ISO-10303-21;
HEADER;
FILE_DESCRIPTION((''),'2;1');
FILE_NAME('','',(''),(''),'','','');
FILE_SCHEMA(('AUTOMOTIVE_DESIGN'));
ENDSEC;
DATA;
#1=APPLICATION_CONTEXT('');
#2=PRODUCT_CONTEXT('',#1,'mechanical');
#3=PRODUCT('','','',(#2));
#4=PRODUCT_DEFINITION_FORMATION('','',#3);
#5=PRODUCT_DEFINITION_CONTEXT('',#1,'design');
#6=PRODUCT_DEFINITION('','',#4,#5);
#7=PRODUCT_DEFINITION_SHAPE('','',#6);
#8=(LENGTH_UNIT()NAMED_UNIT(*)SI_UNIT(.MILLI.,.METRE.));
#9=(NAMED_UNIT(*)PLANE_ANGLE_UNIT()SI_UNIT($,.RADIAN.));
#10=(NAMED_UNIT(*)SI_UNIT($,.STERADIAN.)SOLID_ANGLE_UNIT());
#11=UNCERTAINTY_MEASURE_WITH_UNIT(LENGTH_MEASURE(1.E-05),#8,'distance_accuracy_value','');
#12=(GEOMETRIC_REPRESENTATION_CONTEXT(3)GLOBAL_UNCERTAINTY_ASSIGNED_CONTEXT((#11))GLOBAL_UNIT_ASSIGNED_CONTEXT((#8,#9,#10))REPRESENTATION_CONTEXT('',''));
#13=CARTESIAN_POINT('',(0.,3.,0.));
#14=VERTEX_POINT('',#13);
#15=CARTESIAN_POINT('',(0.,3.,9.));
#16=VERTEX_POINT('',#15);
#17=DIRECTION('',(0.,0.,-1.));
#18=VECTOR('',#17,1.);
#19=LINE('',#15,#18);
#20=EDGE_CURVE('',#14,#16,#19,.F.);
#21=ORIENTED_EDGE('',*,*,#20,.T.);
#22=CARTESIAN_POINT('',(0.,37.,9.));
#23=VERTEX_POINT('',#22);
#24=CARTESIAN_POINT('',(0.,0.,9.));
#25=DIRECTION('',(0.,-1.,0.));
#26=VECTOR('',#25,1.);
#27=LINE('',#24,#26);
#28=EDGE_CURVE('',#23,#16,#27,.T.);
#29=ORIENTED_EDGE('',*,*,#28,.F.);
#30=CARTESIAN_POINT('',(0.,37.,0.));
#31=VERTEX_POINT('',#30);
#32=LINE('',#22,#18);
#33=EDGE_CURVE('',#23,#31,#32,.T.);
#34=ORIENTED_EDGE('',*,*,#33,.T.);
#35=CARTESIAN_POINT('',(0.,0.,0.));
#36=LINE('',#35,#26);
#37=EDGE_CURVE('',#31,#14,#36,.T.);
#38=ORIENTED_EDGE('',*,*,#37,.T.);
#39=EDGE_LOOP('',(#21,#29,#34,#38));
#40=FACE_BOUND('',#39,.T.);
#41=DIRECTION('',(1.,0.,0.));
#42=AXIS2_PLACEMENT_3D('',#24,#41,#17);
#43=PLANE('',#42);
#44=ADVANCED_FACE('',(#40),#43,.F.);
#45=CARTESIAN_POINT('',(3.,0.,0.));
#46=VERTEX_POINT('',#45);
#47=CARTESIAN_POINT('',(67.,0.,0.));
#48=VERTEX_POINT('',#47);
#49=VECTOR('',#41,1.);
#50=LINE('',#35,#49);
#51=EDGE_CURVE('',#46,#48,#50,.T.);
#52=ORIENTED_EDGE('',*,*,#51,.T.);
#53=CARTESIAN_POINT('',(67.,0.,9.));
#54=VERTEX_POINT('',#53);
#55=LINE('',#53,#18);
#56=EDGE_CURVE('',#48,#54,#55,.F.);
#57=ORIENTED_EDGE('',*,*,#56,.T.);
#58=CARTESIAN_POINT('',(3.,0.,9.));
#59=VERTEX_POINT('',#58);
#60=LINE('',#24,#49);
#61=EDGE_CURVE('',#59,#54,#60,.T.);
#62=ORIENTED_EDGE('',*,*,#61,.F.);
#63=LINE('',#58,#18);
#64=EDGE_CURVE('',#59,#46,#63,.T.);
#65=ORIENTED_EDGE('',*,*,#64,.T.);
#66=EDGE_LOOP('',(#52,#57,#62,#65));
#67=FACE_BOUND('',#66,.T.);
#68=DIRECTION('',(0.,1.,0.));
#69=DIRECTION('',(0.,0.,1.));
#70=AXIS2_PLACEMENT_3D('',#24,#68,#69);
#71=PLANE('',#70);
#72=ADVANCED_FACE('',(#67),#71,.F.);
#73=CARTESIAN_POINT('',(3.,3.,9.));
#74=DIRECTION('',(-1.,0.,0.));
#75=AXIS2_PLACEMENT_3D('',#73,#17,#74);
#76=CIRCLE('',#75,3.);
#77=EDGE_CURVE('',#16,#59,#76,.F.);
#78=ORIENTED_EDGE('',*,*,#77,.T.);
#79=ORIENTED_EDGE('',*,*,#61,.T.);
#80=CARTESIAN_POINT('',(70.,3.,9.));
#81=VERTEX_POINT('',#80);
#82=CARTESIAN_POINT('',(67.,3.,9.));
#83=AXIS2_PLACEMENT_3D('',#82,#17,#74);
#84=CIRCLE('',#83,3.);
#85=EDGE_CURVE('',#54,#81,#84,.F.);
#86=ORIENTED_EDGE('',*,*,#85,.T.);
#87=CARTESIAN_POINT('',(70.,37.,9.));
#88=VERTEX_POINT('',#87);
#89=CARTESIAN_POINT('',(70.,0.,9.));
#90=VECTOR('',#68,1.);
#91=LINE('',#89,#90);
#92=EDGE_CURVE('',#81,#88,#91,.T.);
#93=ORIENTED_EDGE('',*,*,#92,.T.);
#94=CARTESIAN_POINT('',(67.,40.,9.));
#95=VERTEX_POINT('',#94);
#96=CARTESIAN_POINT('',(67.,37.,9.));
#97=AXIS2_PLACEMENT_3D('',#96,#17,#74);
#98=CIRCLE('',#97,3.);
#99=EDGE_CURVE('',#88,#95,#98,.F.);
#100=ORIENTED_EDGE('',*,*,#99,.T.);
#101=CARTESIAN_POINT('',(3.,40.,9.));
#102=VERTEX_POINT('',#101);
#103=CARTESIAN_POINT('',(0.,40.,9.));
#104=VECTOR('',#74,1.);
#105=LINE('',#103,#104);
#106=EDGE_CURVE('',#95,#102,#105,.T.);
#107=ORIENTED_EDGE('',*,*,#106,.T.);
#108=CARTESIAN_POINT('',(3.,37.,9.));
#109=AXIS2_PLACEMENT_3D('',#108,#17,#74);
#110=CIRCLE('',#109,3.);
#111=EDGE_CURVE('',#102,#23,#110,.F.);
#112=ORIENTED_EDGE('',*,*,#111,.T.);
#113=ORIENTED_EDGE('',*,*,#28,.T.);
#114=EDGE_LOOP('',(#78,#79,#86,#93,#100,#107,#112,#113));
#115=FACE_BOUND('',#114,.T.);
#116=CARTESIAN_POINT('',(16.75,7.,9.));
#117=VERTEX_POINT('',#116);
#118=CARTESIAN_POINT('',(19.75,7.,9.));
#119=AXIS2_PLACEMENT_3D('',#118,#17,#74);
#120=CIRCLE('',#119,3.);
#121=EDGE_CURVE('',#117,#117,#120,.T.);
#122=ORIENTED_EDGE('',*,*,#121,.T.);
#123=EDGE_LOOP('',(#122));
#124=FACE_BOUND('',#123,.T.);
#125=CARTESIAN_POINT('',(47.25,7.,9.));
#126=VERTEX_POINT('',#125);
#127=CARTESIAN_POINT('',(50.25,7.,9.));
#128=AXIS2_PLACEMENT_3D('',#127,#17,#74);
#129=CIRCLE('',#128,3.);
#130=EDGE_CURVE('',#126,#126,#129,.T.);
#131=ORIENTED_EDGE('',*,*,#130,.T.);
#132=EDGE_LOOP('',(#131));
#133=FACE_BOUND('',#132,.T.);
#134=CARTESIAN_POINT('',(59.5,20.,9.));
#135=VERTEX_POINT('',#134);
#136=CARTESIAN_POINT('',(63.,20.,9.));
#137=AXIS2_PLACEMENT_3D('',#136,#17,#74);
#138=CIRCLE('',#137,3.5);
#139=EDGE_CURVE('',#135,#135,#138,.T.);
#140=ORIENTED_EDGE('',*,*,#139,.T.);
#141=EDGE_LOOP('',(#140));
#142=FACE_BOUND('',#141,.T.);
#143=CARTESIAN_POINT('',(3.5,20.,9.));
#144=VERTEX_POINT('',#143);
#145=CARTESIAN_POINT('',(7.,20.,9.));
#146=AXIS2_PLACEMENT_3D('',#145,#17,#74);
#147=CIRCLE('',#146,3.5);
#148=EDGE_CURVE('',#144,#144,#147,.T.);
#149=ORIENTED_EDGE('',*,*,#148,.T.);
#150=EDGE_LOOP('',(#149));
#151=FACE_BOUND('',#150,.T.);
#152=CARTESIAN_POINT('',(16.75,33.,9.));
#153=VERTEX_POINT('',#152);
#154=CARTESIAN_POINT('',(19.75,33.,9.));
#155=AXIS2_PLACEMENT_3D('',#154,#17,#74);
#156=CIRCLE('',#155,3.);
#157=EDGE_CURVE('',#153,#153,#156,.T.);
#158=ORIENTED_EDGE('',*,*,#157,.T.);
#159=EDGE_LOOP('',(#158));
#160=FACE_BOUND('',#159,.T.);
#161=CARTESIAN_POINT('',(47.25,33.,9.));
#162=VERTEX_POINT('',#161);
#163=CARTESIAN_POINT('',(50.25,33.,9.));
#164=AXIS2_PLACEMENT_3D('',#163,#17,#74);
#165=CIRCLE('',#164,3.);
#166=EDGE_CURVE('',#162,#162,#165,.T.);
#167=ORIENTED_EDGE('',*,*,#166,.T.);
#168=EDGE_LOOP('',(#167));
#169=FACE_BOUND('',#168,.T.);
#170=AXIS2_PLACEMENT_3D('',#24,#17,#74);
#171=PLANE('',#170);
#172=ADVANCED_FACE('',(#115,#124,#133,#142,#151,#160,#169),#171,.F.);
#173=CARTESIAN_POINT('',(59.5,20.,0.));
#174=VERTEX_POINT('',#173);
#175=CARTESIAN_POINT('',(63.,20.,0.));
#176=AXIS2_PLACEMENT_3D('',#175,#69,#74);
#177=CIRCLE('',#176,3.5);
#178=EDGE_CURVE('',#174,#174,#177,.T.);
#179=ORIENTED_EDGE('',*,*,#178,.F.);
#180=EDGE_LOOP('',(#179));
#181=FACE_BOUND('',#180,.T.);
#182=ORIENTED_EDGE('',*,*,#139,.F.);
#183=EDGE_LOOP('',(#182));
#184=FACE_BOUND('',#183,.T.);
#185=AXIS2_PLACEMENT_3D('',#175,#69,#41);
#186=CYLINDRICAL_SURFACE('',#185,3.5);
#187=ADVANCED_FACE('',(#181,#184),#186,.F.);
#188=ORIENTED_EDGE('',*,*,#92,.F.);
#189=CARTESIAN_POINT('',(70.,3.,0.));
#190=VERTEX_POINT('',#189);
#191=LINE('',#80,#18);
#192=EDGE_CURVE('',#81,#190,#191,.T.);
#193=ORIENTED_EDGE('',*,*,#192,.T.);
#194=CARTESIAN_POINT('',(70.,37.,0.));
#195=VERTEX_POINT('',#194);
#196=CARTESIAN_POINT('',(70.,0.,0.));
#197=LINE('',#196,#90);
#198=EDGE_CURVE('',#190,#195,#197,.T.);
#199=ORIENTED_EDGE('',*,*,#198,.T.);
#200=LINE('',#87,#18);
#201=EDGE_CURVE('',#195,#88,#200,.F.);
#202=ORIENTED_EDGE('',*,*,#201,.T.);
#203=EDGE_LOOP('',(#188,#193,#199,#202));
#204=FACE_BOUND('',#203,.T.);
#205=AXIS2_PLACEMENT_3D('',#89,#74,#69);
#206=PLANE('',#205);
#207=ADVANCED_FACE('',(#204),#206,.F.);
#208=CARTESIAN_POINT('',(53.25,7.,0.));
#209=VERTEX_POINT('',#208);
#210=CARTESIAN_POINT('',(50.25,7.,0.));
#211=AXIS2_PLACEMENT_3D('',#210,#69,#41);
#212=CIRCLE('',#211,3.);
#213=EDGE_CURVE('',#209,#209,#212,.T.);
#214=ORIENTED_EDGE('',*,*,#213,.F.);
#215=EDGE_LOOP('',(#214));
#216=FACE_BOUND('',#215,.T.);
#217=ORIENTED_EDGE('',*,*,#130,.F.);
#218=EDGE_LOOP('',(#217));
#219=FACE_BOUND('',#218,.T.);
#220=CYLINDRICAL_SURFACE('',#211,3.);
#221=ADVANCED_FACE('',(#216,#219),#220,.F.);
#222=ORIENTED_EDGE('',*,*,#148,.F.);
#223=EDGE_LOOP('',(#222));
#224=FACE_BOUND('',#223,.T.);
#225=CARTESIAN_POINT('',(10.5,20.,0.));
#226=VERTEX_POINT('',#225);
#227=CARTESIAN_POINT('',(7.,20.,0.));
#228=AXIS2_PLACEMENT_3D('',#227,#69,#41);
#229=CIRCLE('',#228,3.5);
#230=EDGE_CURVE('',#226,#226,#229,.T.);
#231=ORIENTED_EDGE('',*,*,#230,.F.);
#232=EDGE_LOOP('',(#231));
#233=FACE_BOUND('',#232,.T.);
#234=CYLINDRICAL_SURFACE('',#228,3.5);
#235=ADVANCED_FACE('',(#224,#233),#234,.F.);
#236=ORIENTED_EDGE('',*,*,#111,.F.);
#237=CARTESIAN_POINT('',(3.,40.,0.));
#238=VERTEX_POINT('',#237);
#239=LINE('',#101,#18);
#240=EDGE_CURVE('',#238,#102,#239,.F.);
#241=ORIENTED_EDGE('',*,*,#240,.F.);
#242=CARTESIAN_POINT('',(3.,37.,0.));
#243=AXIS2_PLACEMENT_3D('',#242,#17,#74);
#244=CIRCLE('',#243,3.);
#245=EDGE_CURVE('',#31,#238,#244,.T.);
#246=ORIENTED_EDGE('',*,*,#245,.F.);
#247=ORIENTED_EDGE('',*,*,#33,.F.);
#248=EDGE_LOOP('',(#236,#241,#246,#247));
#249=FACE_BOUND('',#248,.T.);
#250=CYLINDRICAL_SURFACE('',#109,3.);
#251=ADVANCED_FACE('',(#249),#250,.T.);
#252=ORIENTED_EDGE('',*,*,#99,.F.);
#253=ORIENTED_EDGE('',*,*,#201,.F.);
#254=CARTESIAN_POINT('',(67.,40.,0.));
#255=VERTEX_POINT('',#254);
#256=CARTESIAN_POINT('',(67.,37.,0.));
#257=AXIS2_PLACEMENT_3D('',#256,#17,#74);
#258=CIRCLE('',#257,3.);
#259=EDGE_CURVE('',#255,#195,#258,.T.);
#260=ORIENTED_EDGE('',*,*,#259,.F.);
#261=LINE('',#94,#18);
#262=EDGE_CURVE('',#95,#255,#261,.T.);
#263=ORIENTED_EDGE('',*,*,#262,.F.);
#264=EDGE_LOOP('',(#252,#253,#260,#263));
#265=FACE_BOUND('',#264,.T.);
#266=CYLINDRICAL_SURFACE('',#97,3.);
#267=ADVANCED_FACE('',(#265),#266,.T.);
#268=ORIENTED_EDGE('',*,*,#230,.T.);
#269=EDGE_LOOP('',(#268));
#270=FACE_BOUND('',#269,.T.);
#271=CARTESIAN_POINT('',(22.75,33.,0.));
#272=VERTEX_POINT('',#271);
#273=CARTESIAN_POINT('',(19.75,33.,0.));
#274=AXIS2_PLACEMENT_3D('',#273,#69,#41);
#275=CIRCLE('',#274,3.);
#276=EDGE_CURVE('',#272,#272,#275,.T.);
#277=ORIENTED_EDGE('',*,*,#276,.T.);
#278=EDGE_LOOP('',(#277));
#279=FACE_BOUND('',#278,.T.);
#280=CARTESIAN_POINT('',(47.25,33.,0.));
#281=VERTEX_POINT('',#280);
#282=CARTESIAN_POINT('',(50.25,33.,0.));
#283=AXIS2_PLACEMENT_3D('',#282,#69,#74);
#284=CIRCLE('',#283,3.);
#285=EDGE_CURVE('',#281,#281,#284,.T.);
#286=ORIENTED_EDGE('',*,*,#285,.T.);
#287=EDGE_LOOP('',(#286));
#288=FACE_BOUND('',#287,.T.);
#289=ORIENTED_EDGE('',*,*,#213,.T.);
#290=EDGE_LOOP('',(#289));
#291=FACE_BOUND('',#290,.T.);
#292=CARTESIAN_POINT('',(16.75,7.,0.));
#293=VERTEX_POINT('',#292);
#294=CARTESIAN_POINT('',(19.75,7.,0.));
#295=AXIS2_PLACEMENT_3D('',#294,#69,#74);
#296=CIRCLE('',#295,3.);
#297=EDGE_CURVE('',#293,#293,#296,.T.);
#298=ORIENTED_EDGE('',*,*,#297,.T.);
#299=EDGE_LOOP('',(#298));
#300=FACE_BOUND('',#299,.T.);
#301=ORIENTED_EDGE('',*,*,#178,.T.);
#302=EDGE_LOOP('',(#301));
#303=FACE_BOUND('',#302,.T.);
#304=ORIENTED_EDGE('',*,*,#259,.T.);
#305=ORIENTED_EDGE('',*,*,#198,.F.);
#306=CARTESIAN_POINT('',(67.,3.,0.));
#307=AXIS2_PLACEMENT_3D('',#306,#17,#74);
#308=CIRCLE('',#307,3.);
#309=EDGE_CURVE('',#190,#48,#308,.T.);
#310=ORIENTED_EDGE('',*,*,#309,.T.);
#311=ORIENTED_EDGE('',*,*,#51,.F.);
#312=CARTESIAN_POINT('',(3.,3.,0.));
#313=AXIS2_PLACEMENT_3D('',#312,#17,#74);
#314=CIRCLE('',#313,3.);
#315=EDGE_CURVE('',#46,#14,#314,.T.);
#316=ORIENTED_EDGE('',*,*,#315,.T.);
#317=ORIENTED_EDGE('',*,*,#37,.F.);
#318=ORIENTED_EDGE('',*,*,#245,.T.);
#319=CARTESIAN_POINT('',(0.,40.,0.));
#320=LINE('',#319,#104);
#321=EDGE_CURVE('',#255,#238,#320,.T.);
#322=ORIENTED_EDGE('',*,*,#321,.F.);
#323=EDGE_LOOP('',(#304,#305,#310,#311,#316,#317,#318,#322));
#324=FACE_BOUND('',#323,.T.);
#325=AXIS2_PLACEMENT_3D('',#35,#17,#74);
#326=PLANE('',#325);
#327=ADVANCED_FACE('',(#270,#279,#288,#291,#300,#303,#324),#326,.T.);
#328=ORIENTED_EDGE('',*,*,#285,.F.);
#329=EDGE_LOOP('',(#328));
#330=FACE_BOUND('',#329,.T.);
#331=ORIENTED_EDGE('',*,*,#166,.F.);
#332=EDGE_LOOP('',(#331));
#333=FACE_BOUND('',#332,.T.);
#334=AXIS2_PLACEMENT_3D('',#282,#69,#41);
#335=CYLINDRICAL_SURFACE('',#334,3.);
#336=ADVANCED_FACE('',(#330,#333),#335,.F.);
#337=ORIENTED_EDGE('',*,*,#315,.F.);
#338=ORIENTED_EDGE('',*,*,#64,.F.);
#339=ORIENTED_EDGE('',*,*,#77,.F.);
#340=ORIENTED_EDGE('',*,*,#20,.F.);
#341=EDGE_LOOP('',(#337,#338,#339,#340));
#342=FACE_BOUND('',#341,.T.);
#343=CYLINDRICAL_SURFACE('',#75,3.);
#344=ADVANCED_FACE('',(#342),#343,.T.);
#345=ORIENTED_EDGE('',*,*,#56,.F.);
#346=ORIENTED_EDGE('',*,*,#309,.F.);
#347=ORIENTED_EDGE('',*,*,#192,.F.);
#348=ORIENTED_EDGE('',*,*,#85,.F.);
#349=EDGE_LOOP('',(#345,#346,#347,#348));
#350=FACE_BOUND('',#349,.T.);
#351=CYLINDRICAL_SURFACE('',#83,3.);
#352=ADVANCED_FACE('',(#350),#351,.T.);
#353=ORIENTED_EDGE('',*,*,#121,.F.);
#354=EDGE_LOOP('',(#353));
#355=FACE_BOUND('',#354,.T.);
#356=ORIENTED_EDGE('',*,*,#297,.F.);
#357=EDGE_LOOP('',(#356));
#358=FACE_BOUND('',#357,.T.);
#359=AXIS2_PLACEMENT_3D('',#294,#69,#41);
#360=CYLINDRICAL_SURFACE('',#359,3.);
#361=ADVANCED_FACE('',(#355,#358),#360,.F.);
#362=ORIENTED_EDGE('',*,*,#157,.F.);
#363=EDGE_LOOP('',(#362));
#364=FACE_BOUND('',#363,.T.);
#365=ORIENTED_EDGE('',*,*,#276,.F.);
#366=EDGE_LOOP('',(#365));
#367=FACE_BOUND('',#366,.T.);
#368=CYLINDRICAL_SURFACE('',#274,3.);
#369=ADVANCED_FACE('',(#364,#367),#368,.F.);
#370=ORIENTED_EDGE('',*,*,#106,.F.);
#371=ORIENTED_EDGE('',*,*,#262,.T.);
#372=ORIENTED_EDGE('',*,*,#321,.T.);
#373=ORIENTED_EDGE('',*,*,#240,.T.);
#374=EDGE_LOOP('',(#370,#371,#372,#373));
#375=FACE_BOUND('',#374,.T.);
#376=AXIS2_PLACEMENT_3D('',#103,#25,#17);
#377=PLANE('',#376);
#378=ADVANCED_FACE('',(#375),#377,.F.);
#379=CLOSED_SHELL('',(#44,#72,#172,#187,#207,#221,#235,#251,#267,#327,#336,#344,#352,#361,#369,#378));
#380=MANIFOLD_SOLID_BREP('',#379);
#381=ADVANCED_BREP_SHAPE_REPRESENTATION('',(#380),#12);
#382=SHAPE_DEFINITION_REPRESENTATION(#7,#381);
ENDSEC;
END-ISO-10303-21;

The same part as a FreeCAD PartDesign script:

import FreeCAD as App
import Part
import Sketcher
from FreeCAD import Vector


def edges_at(feature, points):
    """Names of the edges that pass closest to the given points."""
    edges = feature.Shape.Edges
    near = lambda p: min(range(len(edges)), key=lambda i: edges[i].distToShape(Part.Vertex(*p))[0])
    return sorted({f"Edge{near(p) + 1}" for p in points})


def add_polygon(sketch, points):
    """Adds a closed chain of lines whose ends are joined by coincident constraints."""
    first, n = sketch.GeometryCount, len(points)
    for a, b in zip(points, points[1:] + points[:1]):
        sketch.addGeometry(Part.LineSegment(App.Vector(*a, 0), App.Vector(*b, 0)), False)
    for i in range(n):
        sketch.addConstraint(Sketcher.Constraint("Coincident", first + i, 2, first + (i + 1) % n, 1))

doc = App.newDocument("Part")
body = doc.addObject("PartDesign::Body", "Body")

# Sketch on XY plane
sketch1 = body.newObject("Sketcher::SketchObject", "Sketch")
sketch1.AttachmentSupport = (doc.getObject("XY_Plane"), [""])
sketch1.MapMode = "FlatFace"
add_polygon(sketch1, [(0, 40), (0, 0), (70, 0), (70, 40)])  # lines 0-3
sketch1.addConstraint([
    Sketcher.Constraint("Vertical", 0),
    Sketcher.Constraint("Horizontal", 1),
    Sketcher.Constraint("Vertical", 2),
    Sketcher.Constraint("Horizontal", 3),
    Sketcher.Constraint("Coincident", 0, 2, -1, 1),
    Sketcher.Constraint("DistanceX", 1, 1, 1, 2, 70.0),
    Sketcher.Constraint("DistanceY", 0, 2, 0, 1, 40.0),
])
pad1 = body.newObject("PartDesign::Pad", "Pad")
pad1.Profile = sketch1
pad1.Length = 9

# Sketch on XY plane
sketch2 = body.newObject("Sketcher::SketchObject", "Sketch001")
sketch2.AttachmentSupport = (doc.getObject("XY_Plane"), [""])
sketch2.MapMode = "FlatFace"
sketch2.AttachmentOffset = App.Placement(Vector(0, 0, 9), App.Rotation())
sketch2.addGeometry([
    Part.Circle(Vector(19.8, 33, 0), Vector(0, 0, 1), 3),  # 0
    Part.Circle(Vector(50.2, 33, 0), Vector(0, 0, 1), 3),  # 1
    Part.Circle(Vector(50.2, 7, 0), Vector(0, 0, 1), 3),  # 2
    Part.Circle(Vector(19.8, 7, 0), Vector(0, 0, 1), 3),  # 3
    Part.Circle(Vector(7, 20, 0), Vector(0, 0, 1), 3.5),  # 4
    Part.Circle(Vector(63, 20, 0), Vector(0, 0, 1), 3.5),  # 5
], False)
sketch2.addConstraint([
    Sketcher.Constraint("Equal", 0, 1),
    Sketcher.Constraint("Equal", 1, 2),
    Sketcher.Constraint("Equal", 2, 3),
    Sketcher.Constraint("Equal", 4, 5),
    Sketcher.Constraint("Horizontal", 0, 3, 1, 3),
    Sketcher.Constraint("Horizontal", 2, 3, 3, 3),
    Sketcher.Constraint("Horizontal", 4, 3, 5, 3),
    Sketcher.Constraint("Vertical", 1, 3, 2, 3),
    Sketcher.Constraint("Vertical", 0, 3, 3, 3),
    Sketcher.Constraint("Diameter", 0, 6.0),
    Sketcher.Constraint("Diameter", 4, 7.0),
    Sketcher.Constraint("DistanceY", -1, 1, 0, 3, 33.0),
    Sketcher.Constraint("DistanceY", -1, 1, 2, 3, 7.0),
    Sketcher.Constraint("DistanceX", -1, 1, 4, 3, 7.0),
    Sketcher.Constraint("DistanceY", -1, 1, 4, 3, 20.0),
    Sketcher.Constraint("DistanceX", -1, 1, 5, 3, 63.0),
    Sketcher.Constraint("DistanceX", 0, 3, 1, 3, 30.5),
    Sketcher.Constraint("DistanceX", -1, 1, 0, 3, 19.75),
])
pocket1 = body.newObject("PartDesign::Pocket", "Pocket")
pocket1.Profile = sketch2
pocket1.Type = "ThroughAll"
pocket1.Midplane = True
doc.recompute()

fillet = body.newObject("PartDesign::Fillet", "Fillet")
fillet.Base = (pocket1, edges_at(pocket1, [
    (0, 40, 4.5),
    (70, 40, 4.5),
    (70, 0, 4.5),
    (0, 0, 4.5),
]))
fillet.Radius = 3

doc.recompute()
